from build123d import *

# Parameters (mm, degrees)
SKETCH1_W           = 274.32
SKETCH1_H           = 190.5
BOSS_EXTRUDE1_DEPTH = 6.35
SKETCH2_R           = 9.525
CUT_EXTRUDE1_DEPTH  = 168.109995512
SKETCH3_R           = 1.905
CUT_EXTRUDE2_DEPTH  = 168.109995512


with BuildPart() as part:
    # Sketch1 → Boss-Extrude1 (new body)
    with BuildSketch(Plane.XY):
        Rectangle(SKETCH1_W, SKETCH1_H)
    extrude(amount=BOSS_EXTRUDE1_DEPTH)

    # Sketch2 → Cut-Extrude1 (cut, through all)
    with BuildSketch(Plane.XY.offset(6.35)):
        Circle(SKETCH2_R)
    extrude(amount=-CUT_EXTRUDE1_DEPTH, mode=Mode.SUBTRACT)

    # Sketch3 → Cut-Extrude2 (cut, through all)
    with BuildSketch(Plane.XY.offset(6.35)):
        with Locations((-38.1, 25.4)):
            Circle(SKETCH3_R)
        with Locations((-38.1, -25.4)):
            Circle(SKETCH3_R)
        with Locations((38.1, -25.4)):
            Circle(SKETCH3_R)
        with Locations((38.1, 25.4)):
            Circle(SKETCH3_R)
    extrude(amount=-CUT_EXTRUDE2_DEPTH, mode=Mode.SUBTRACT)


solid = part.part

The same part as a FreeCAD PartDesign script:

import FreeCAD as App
import Part
import Sketcher

V = App.Vector
Q = App.Units.Quantity

doc = App.newDocument("Part")
body = doc.addObject("PartDesign::Body", "Body")

sketch1 = body.newObject("Sketcher::SketchObject", "Sketch")
sketch1.AttachmentSupport = (doc.getObject("XY_Plane"), [""])
sketch1.MapMode = "FlatFace"
sketch1.addGeometry([
    Part.LineSegment(V(-137.16, 95.25, 0), V(-137.16, -95.25, 0)),
    Part.LineSegment(V(-137.16, -95.25, 0), V(137.16, -95.25, 0)),
    Part.LineSegment(V(137.16, -95.25, 0), V(137.16, 95.25, 0)),
    Part.LineSegment(V(137.16, 95.25, 0), V(-137.16, 95.25, 0)),
], False)
sketch1.addConstraint([
    Sketcher.Constraint("Coincident", 0, 2, 1, 1),
    Sketcher.Constraint("Coincident", 1, 2, 2, 1),
    Sketcher.Constraint("Coincident", 2, 2, 3, 1),
    Sketcher.Constraint("Coincident", 3, 2, 0, 1),
    Sketcher.Constraint("Vertical", 0),
    Sketcher.Constraint("Horizontal", 1),
    Sketcher.Constraint("Vertical", 2),
    Sketcher.Constraint("Horizontal", 3),
    Sketcher.Constraint("Symmetric", 0, 2, 2, 2, -1, 1),
    Sketcher.Constraint("DistanceX", 1, 1, 1, 2, Q("10.8 in")),
    Sketcher.Constraint("DistanceY", 0, 2, 0, 1, Q("7.5 in")),
])
pad1 = body.newObject("PartDesign::Pad", "Pad")
pad1.Profile = sketch1
pad1.Length = Q("0.25 in")

sketch2 = body.newObject("Sketcher::SketchObject", "Sketch001")
sketch2.AttachmentSupport = (doc.getObject("XY_Plane"), [""])
sketch2.MapMode = "FlatFace"
sketch2.AttachmentOffset = App.Placement(V(0, 0, 0.25 * 25.4), App.Rotation())
sketch2.addGeometry(Part.Circle(V(0, 0, 0), V(0, 0, 1), 9.525), False)
sketch2.addConstraint([
    Sketcher.Constraint("Coincident", 0, 3, -1, 1),
    Sketcher.Constraint("Diameter", 0, Q("0.75 in")),
])
pocket1 = body.newObject("PartDesign::Pocket", "Pocket")
pocket1.Profile = sketch2
pocket1.Type = "ThroughAll"

sketch3 = body.newObject("Sketcher::SketchObject", "Sketch002")
sketch3.AttachmentSupport = (doc.getObject("XY_Plane"), [""])
sketch3.MapMode = "FlatFace"
sketch3.AttachmentOffset = App.Placement(V(0, 0, 0.25 * 25.4), App.Rotation())
sketch3.addGeometry([
    Part.Circle(V(-38.1, 25.4, 0), V(0, 0, 1), 1.905),
    Part.Circle(V(-38.1, -25.4, 0), V(0, 0, 1), 1.905),
    Part.Circle(V(38.1, -25.4, 0), V(0, 0, 1), 1.905),
    Part.Circle(V(38.1, 25.4, 0), V(0, 0, 1), 1.905),
], False)
sketch3.addConstraint([
    Sketcher.Constraint("Equal", 0, 1),
    Sketcher.Constraint("Equal", 1, 2),
    Sketcher.Constraint("Equal", 2, 3),
    Sketcher.Constraint("Symmetric", 0, 3, 2, 3, -1, 1),
    Sketcher.Constraint("Symmetric", 1, 3, 3, 3, -1, 1),
    Sketcher.Constraint("Symmetric", 1, 3, 2, 3, -2),
    Sketcher.Constraint("Diameter", 0, Q("0.15 in")),
    Sketcher.Constraint("DistanceY", -1, 1, 0, 3, Q("1 in")),
    Sketcher.Constraint("DistanceX", 1, 3, 2, 3, Q("3 in")),
])
pocket2 = body.newObject("PartDesign::Pocket", "Pocket001")
pocket2.Profile = sketch3
pocket2.Type = "ThroughAll"

doc.recompute()
